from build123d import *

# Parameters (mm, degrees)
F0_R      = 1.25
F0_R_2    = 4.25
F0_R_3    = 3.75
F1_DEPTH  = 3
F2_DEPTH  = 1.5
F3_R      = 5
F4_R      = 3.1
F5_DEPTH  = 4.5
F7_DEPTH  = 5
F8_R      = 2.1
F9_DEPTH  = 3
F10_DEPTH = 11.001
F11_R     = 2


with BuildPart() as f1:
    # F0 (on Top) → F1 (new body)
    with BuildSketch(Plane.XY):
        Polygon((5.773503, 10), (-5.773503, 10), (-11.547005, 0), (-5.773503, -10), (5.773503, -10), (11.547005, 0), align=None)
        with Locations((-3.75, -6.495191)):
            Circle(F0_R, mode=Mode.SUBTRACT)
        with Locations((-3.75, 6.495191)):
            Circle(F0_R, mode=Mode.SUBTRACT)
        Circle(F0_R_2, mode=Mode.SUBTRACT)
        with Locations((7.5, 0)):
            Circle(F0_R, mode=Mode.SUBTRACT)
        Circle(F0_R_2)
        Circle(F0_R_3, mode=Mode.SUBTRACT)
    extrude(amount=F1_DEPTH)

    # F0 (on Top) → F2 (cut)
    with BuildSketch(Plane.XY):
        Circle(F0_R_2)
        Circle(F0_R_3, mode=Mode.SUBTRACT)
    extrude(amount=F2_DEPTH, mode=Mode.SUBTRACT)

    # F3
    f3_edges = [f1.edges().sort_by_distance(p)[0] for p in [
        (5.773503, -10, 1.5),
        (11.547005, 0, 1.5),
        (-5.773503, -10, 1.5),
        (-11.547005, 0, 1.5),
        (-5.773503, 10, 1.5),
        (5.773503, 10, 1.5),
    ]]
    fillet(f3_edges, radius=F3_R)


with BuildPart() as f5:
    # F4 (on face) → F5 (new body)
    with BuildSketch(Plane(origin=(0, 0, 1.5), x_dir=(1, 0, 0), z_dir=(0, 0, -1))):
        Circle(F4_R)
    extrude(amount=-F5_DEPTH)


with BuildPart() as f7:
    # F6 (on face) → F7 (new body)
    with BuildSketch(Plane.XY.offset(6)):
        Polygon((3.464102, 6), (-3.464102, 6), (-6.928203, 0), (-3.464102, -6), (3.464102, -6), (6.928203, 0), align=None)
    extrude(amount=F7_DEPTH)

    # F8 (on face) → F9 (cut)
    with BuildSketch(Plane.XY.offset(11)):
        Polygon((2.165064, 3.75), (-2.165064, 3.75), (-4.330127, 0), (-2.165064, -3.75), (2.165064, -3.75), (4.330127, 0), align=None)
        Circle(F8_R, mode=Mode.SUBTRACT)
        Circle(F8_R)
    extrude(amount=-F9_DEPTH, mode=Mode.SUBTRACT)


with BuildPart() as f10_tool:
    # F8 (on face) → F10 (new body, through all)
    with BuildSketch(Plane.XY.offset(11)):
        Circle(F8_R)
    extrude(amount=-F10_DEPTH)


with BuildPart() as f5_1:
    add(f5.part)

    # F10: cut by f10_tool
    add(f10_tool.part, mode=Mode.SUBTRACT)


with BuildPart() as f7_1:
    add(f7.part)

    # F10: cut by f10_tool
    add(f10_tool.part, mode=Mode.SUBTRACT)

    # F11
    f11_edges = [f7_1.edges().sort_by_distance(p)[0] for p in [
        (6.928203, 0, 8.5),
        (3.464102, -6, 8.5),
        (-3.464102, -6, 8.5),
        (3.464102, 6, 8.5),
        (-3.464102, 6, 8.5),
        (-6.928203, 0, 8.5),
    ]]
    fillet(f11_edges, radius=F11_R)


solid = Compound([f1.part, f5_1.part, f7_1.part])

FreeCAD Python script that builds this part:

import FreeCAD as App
import Part
import Sketcher
Q = App.Units.Quantity


def edges_at(feature, points):
    """Names of the edges that pass closest to the given points."""
    edges = feature.Shape.Edges
    near = lambda p: min(range(len(edges)), key=lambda i: edges[i].distToShape(Part.Vertex(*p))[0])
    return sorted({f"Edge{near(p) + 1}" for p in points})

doc = App.newDocument("Part")
params = doc.addObject("Spreadsheet::Sheet", "Params")
for row, (alias, value) in enumerate([
    ("sketch1_diameter", "2.5 mm"),
    ("sketch1_diameter2", "7.5 mm"),
    ("pad1_length", "3 mm"),
    ("sketch2_diameter", "8.5 mm"),
    ("sketch2_diameter2", "7.5 mm"),
    ("pocket1_length", "1.5 mm"),
    ("fillet_radius", "5 mm"),
    ("sketch3_diameter", "6.2 mm"),
    ("pad2_length", "4.5 mm"),
    ("pad3_length", "5 mm"),
    ("pocket2_length", "3 mm"),
    ("sketch6_diameter", "4.2 mm"),
    ("pad4_length", "11.001 mm"),
    ("fillet2_radius", "2 mm"),
], start=1):
    params.set(f"A{row}", alias)
    params.set(f"B{row}", "=" + value)
    params.setAlias(f"B{row}", alias)

body = doc.addObject("PartDesign::Body", "Body")

# Sketch on XY plane
sketch1 = body.newObject("Sketcher::SketchObject", "Sketch")
sketch1.AttachmentSupport = (doc.getObject("XY_Plane"), [""])
sketch1.MapMode = "FlatFace"
sketch1.addGeometry([
    Part.LineSegment(App.Vector(5.8, 10, 0), App.Vector(-5.8, 10, 0)),  # 0
    Part.LineSegment(App.Vector(-5.8, 10, 0), App.Vector(-11.5, 0, 0)),  # 1
    Part.LineSegment(App.Vector(-11.5, 0, 0), App.Vector(-5.8, -10, 0)),  # 2
    Part.LineSegment(App.Vector(-5.8, -10, 0), App.Vector(5.8, -10, 0)),  # 3
    Part.LineSegment(App.Vector(5.8, -10, 0), App.Vector(11.5, 0, 0)),  # 4
    Part.LineSegment(App.Vector(11.5, 0, 0), App.Vector(5.8, 10, 0)),  # 5
    Part.Circle(App.Vector(-3.8, -6.5, 0), App.Vector(0, 0, 1), 1.2),  # 6
    Part.Circle(App.Vector(0, 0, 0), App.Vector(0, 0, 1), 3.8),  # 7
    Part.Circle(App.Vector(-3.8, 6.5, 0), App.Vector(0, 0, 1), 1.2),  # 8
    Part.Circle(App.Vector(7.5, 0, 0), App.Vector(0, 0, 1), 1.2),  # 9
], False)
sketch1.addConstraint([
    Sketcher.Constraint("Coincident", 0, 2, 1, 1),
    Sketcher.Constraint("Coincident", 1, 2, 2, 1),
    Sketcher.Constraint("Coincident", 2, 2, 3, 1),
    Sketcher.Constraint("Coincident", 3, 2, 4, 1),
    Sketcher.Constraint("Coincident", 4, 2, 5, 1),
    Sketcher.Constraint("Coincident", 5, 2, 0, 1),
    Sketcher.Constraint("Horizontal", 0),
    Sketcher.Constraint("Horizontal", 3),
    Sketcher.Constraint("Coincident", 7, 3, -1, 1),
    Sketcher.Constraint("Equal", 6, 8),
    Sketcher.Constraint("Equal", 8, 9),
    Sketcher.Constraint("Symmetric", 0, 2, 3, 2, -1, 1),
    Sketcher.Constraint("Symmetric", 1, 2, 4, 2, -1, 1),
    Sketcher.Constraint("Symmetric", 6, 3, 8, 3, -1),
    Sketcher.Constraint("PointOnObject", 9, 3, -1),
    Sketcher.Constraint("PointOnObject", 1, 2, -1),
    Sketcher.Constraint("Parallel", 2, 5),
    Sketcher.Constraint("Vertical", 0, 2, 2, 2),
    Sketcher.Constraint("Diameter", 6, Q("2.5 mm")),
    Sketcher.Constraint("Diameter", 7, Q("7.5 mm")),
    Sketcher.Constraint("Angle", 1, Q("-119.999997 deg")),
    Sketcher.Constraint("DistanceY", -1, 1, 0, 2, Q("10 mm")),
    Sketcher.Constraint("DistanceX", -1, 1, 9, 3, Q("7.5 mm")),
    Sketcher.Constraint("DistanceX", 6, 3, -1, 1, Q("3.75 mm")),
    Sketcher.Constraint("DistanceX", 0, 2, 0, 1, Q("11.547006 mm")),
    Sketcher.Constraint("DistanceY", 6, 3, -1, 1, Q("6.495191 mm")),
])
sketch1.setExpression("Constraints[18]", "Params.sketch1_diameter")
sketch1.setExpression("Constraints[19]", "Params.sketch1_diameter2")
pad1 = body.newObject("PartDesign::Pad", "Pad")
pad1.Profile = sketch1
pad1.setExpression("Length", "Params.pad1_length")

# Sketch on XY plane
sketch2 = body.newObject("Sketcher::SketchObject", "Sketch001")
sketch2.AttachmentSupport = (doc.getObject("XY_Plane"), [""])
sketch2.MapMode = "FlatFace"
sketch2.addGeometry([
    Part.Circle(App.Vector(0, 0, 0), App.Vector(0, 0, 1), 4.2),
    Part.Circle(App.Vector(0, 0, 0), App.Vector(0, 0, 1), 3.8),
], False)
sketch2.addConstraint([
    Sketcher.Constraint("Coincident", 0, 3, -1, 1),
    Sketcher.Constraint("Coincident", 1, 3, -1, 1),
    Sketcher.Constraint("Diameter", 0, Q("8.5 mm")),
    Sketcher.Constraint("Diameter", 1, Q("7.5 mm")),
])
sketch2.setExpression("Constraints[2]", "Params.sketch2_diameter")
sketch2.setExpression("Constraints[3]", "Params.sketch2_diameter2")
pocket1 = body.newObject("PartDesign::Pocket", "Pocket")
pocket1.Profile = sketch2
pocket1.setExpression("Length", "Params.pocket1_length")
pocket1.Reversed = True
doc.recompute()

fillet = body.newObject("PartDesign::Fillet", "Fillet")
fillet.Base = (pocket1, edges_at(pocket1, [
    (5.774, -10, 1.5),
    (11.547, 0, 1.5),
    (-5.774, -10, 1.5),
    (-11.547, 0, 1.5),
    (-5.774, 10, 1.5),
    (5.774, 10, 1.5),
]))
fillet.setExpression("Radius", "Params.fillet_radius")
body2 = doc.addObject("PartDesign::Body", "Body001")

# Sketch on XY plane
sketch3 = body2.newObject("Sketcher::SketchObject", "Sketch002")
sketch3.AttachmentSupport = (doc.getObject("XY_Plane001"), [""])
sketch3.MapMode = "FlatFace"
sketch3.AttachmentOffset = App.Placement(App.Vector(0, 0, 1.5), App.Rotation())
sketch3.addGeometry(Part.Circle(App.Vector(0, 0, 0), App.Vector(0, 0, 1), 3.1), False)
sketch3.addConstraint([
    Sketcher.Constraint("Coincident", 0, 3, -1, 1),
    Sketcher.Constraint("Diameter", 0, Q("6.2 mm")),
])
sketch3.setExpression("Constraints[1]", "Params.sketch3_diameter")
pad2 = body2.newObject("PartDesign::Pad", "Pad001")
pad2.Profile = sketch3
pad2.setExpression("Length", "Params.pad2_length")
body3 = doc.addObject("PartDesign::Body", "Body002")

# Sketch on XY plane
sketch4 = body3.newObject("Sketcher::SketchObject", "Sketch003")
sketch4.AttachmentSupport = (doc.getObject("XY_Plane002"), [""])
sketch4.MapMode = "FlatFace"
sketch4.AttachmentOffset = App.Placement(App.Vector(0, 0, 6), App.Rotation())
sketch4.addGeometry([
    Part.LineSegment(App.Vector(3, 6, 0), App.Vector(-3, 6, 0)),  # 0
    Part.LineSegment(App.Vector(-3, 6, 0), App.Vector(-7, 0, 0)),  # 1
    Part.LineSegment(App.Vector(-7, 0, 0), App.Vector(-3, -6, 0)),  # 2
    Part.LineSegment(App.Vector(-3, -6, 0), App.Vector(3, -6, 0)),  # 3
    Part.LineSegment(App.Vector(3, -6, 0), App.Vector(7, 0, 0)),  # 4
    Part.LineSegment(App.Vector(7, 0, 0), App.Vector(3, 6, 0)),  # 5
], False)
sketch4.addConstraint([
    Sketcher.Constraint("Coincident", 0, 2, 1, 1),
    Sketcher.Constraint("Coincident", 1, 2, 2, 1),
    Sketcher.Constraint("Coincident", 2, 2, 3, 1),
    Sketcher.Constraint("Coincident", 3, 2, 4, 1),
    Sketcher.Constraint("Coincident", 4, 2, 5, 1),
    Sketcher.Constraint("Coincident", 5, 2, 0, 1),
    Sketcher.Constraint("Horizontal", 0),
    Sketcher.Constraint("Horizontal", 3),
    Sketcher.Constraint("Symmetric", 0, 2, 3, 2, -1, 1),
    Sketcher.Constraint("Symmetric", 1, 2, 4, 2, -1, 1),
    Sketcher.Constraint("PointOnObject", 1, 2, -1),
    Sketcher.Constraint("Parallel", 2, 5),
    Sketcher.Constraint("Vertical", 0, 2, 2, 2),
    Sketcher.Constraint("Angle", 1, Q("-119.999996 deg")),
    Sketcher.Constraint("DistanceY", -1, 1, 0, 2, Q("6 mm")),
    Sketcher.Constraint("DistanceX", 0, 2, -1, 1, Q("3.464102 mm")),
])
pad3 = body3.newObject("PartDesign::Pad", "Pad002")
pad3.Profile = sketch4
pad3.setExpression("Length", "Params.pad3_length")

# Sketch on XY plane
sketch5 = body3.newObject("Sketcher::SketchObject", "Sketch004")
sketch5.AttachmentSupport = (doc.getObject("XY_Plane002"), [""])
sketch5.MapMode = "FlatFace"
sketch5.AttachmentOffset = App.Placement(App.Vector(0, 0, 11), App.Rotation())
sketch5.addGeometry([
    Part.LineSegment(App.Vector(2.2, 3.8, 0), App.Vector(-2.2, 3.8, 0)),  # 0
    Part.LineSegment(App.Vector(-2.2, 3.8, 0), App.Vector(-4.3, 0, 0)),  # 1
    Part.LineSegment(App.Vector(-4.3, 0, 0), App.Vector(-2.2, -3.8, 0)),  # 2
    Part.LineSegment(App.Vector(-2.2, -3.8, 0), App.Vector(2.2, -3.8, 0)),  # 3
    Part.LineSegment(App.Vector(2.2, -3.8, 0), App.Vector(4.3, 0, 0)),  # 4
    Part.LineSegment(App.Vector(4.3, 0, 0), App.Vector(2.2, 3.8, 0)),  # 5
], False)
sketch5.addConstraint([
    Sketcher.Constraint("Coincident", 0, 2, 1, 1),
    Sketcher.Constraint("Coincident", 1, 2, 2, 1),
    Sketcher.Constraint("Coincident", 2, 2, 3, 1),
    Sketcher.Constraint("Coincident", 3, 2, 4, 1),
    Sketcher.Constraint("Coincident", 4, 2, 5, 1),
    Sketcher.Constraint("Coincident", 5, 2, 0, 1),
    Sketcher.Constraint("Horizontal", 0),
    Sketcher.Constraint("Horizontal", 3),
    Sketcher.Constraint("Symmetric", 0, 2, 3, 2, -1, 1),
    Sketcher.Constraint("Symmetric", 1, 2, 4, 2, -1, 1),
    Sketcher.Constraint("PointOnObject", 1, 2, -1),
    Sketcher.Constraint("Parallel", 2, 5),
    Sketcher.Constraint("Vertical", 0, 2, 2, 2),
    Sketcher.Constraint("Angle", 1, Q("-119.999994 deg")),
    Sketcher.Constraint("DistanceY", 2, 2, 0, 2, Q("7.5 mm")),
    Sketcher.Constraint("DistanceX", 0, 2, 0, 1, Q("4.330128 mm")),
])
pocket2 = body3.newObject("PartDesign::Pocket", "Pocket001")
pocket2.Profile = sketch5
pocket2.setExpression("Length", "Params.pocket2_length")
body4 = doc.addObject("PartDesign::Body", "Body003")

# Sketch on XY plane
sketch6 = body4.newObject("Sketcher::SketchObject", "Sketch005")
sketch6.AttachmentSupport = (doc.getObject("XY_Plane003"), [""])
sketch6.MapMode = "FlatFace"
sketch6.AttachmentOffset = App.Placement(App.Vector(0, 0, 11), App.Rotation())
sketch6.addGeometry(Part.Circle(App.Vector(0, 0, 0), App.Vector(0, 0, 1), 2.1), False)
sketch6.addConstraint([
    Sketcher.Constraint("Coincident", 0, 3, -1, 1),
    Sketcher.Constraint("Diameter", 0, Q("4.2 mm")),
])
sketch6.setExpression("Constraints[1]", "Params.sketch6_diameter")
pad4 = body4.newObject("PartDesign::Pad", "Pad003")
pad4.Profile = sketch6
pad4.setExpression("Length", "Params.pad4_length")
pad4.Reversed = True
doc.recompute()

body5 = doc.addObject("PartDesign::Body", "Body004")
body5.BaseFeature = body4
boolean = body2.newObject("PartDesign::Boolean", "Boolean")
boolean.Type = "Cut"
boolean.addObjects([body5])
doc.recompute()

boolean2 = body3.newObject("PartDesign::Boolean", "Boolean001")
boolean2.Type = "Cut"
boolean2.addObjects([body4])
doc.recompute()

fillet2 = body3.newObject("PartDesign::Fillet", "Fillet001")
fillet2.Base = (boolean2, edges_at(boolean2, [
    (6.928, 0, 8.5),
    (3.464, -6, 8.5),
    (-3.464, -6, 8.5),
    (3.464, 6, 8.5),
    (-3.464, 6, 8.5),
    (-6.928, 0, 8.5),
]))
fillet2.setExpression("Radius", "Params.fillet2_radius")

doc.recompute()
